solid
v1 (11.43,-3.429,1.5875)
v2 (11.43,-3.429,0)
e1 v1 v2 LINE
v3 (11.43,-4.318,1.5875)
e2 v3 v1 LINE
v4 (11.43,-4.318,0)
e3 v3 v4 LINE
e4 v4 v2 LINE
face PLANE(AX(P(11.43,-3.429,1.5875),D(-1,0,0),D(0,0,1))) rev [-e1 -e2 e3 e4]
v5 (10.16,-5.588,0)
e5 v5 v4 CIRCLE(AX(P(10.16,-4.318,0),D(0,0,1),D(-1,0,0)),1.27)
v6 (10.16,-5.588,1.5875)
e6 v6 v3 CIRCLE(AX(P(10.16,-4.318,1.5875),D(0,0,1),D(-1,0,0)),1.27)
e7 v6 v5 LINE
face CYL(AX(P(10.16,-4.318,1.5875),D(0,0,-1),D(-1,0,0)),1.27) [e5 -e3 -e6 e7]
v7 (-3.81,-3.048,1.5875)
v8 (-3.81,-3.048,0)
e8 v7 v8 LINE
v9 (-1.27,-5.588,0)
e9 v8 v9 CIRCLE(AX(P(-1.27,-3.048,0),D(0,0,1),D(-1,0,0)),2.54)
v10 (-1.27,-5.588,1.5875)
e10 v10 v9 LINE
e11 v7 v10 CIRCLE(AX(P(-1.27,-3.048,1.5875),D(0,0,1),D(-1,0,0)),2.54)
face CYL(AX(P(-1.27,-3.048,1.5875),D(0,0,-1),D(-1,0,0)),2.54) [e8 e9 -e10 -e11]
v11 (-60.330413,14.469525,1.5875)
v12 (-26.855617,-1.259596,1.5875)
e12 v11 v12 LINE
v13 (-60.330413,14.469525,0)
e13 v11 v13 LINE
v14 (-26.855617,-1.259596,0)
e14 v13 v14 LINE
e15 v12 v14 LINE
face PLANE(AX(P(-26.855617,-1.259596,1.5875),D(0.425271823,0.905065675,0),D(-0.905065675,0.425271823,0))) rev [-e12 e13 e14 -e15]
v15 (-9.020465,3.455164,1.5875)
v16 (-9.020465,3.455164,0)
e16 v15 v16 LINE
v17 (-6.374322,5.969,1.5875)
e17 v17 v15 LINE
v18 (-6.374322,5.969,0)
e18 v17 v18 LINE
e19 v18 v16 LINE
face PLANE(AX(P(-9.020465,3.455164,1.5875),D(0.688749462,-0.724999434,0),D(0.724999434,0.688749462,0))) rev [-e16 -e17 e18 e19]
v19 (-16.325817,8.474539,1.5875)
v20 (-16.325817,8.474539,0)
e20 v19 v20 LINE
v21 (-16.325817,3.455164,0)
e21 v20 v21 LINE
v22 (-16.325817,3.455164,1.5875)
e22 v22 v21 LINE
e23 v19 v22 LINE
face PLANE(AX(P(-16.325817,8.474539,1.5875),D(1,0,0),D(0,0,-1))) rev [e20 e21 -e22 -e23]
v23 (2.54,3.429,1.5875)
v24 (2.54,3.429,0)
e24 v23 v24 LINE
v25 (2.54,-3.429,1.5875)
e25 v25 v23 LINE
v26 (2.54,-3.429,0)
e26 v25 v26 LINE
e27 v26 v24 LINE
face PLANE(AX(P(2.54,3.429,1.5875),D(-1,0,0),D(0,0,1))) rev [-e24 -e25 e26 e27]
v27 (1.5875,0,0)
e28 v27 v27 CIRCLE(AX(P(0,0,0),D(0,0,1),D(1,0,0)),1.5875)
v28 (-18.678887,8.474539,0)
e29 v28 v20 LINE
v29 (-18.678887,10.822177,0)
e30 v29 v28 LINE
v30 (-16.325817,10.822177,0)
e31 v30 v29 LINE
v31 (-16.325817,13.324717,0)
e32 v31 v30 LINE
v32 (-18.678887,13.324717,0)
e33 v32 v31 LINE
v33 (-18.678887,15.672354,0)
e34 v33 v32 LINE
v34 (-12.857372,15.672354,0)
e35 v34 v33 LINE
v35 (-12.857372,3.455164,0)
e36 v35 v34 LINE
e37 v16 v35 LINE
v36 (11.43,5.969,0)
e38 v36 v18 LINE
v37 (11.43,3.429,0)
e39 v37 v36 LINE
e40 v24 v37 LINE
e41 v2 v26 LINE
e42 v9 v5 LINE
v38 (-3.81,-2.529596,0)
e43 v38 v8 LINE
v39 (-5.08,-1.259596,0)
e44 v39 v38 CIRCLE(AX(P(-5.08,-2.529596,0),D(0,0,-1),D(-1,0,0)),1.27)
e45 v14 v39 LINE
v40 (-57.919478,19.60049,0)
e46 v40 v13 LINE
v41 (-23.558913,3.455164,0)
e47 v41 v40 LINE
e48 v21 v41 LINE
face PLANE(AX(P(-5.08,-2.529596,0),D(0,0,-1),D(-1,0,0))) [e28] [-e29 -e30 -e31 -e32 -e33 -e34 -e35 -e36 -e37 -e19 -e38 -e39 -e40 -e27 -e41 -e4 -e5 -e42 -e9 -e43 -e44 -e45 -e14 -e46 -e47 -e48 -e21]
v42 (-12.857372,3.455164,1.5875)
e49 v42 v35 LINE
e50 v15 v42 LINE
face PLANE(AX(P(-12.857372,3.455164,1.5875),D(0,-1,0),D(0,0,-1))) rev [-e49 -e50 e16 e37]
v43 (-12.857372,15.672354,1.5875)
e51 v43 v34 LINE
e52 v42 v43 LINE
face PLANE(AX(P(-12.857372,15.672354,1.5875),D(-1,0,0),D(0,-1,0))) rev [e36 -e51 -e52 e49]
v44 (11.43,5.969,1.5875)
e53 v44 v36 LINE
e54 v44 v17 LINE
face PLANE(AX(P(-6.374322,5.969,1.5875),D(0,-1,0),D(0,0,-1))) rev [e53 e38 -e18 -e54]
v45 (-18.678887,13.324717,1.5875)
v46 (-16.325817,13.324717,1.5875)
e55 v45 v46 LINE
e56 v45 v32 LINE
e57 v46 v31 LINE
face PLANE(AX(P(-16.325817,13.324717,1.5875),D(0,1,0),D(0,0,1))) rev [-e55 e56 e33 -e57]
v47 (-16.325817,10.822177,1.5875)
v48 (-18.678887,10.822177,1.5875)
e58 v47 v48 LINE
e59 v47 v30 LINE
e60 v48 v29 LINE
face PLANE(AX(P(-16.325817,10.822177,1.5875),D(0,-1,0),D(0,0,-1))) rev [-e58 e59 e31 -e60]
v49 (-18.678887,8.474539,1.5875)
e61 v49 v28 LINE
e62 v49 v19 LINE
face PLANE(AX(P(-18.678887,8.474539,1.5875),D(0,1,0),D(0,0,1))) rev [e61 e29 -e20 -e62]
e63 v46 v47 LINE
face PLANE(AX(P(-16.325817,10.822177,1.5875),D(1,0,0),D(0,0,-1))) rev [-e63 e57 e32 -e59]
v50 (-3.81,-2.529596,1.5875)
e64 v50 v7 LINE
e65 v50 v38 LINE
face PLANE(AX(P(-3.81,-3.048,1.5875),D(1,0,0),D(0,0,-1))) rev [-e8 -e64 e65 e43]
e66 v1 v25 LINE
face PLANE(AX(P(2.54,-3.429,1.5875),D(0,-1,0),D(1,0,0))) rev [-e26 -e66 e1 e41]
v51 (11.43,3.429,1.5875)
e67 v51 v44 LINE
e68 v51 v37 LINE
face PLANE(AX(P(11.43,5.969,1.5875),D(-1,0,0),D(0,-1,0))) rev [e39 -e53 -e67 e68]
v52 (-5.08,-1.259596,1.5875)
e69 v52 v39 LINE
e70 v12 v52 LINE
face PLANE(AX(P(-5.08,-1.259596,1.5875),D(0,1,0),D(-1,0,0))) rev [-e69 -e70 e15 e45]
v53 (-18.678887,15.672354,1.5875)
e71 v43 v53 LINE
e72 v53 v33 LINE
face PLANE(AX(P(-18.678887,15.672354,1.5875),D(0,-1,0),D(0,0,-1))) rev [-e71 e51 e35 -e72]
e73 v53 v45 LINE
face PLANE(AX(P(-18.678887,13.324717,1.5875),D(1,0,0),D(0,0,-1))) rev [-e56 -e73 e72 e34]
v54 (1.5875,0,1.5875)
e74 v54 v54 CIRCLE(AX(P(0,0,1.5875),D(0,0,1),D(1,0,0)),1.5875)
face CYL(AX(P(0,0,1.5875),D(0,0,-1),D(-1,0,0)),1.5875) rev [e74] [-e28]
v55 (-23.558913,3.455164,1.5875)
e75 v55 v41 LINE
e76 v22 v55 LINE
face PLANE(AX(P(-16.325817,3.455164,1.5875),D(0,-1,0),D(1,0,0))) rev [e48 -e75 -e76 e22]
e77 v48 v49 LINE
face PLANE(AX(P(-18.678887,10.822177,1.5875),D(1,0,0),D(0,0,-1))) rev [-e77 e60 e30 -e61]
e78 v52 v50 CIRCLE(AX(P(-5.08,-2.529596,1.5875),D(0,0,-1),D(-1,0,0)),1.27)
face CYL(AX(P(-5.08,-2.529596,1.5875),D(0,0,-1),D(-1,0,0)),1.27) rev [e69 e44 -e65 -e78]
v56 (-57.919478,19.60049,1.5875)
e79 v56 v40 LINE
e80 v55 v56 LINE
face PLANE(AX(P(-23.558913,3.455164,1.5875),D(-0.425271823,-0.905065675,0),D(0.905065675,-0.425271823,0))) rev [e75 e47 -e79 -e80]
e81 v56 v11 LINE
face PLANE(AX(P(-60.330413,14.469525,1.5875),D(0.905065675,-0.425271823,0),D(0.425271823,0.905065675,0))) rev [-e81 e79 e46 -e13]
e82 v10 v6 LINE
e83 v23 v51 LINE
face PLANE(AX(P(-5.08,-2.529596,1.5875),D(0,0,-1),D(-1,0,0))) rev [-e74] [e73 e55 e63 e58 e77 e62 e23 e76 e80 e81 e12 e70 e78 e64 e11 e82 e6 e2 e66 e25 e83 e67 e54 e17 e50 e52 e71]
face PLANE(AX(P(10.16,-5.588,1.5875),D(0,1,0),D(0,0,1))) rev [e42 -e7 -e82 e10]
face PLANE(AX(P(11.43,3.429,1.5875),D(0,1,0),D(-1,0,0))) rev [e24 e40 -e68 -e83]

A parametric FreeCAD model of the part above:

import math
import FreeCAD as App
import Part
import Sketcher
Q = App.Units.Quantity

doc = App.newDocument("Part")
params = doc.addObject("Spreadsheet::Sheet", "Params")
for row, (alias, value) in enumerate([
    ("sketch1_radius", "0.1 in"),
    ("sketch1_radius2", "0.05 in"),
    ("sketch1_diameter", "0.125 in"),
    ("sketch1_height", "0.1 in"),
    ("sketch1_width", "0.45 in"),
    ("pad1_length", "0.0625 in"),
], start=1):
    params.set(f"A{row}", alias)
    params.set(f"B{row}", "=" + value)
    params.setAlias(f"B{row}", alias)

body = doc.addObject("PartDesign::Body", "Body")

# Sketch on XY plane
sketch1 = body.newObject("Sketcher::SketchObject", "Sketch")
sketch1.AttachmentSupport = (doc.getObject("XY_Plane"), [""])
sketch1.MapMode = "FlatFace"
sketch1.addGeometry([
    Part.LineSegment(App.Vector(-16.3, 3.5, 0), App.Vector(-23.6, 3.5, 0)),  # 0
    Part.LineSegment(App.Vector(-23.6, 3.5, 0), App.Vector(-57.9, 19.6, 0)),  # 1
    Part.LineSegment(App.Vector(-57.9, 19.6, 0), App.Vector(-60.3, 14.5, 0)),  # 2
    Part.LineSegment(App.Vector(-60.3, 14.5, 0), App.Vector(-26.9, -1.3, 0)),  # 3
    Part.LineSegment(App.Vector(-26.9, -1.3, 0), App.Vector(-5.1, -1.3, 0)),  # 4
    Part.ArcOfCircle(Part.Circle(App.Vector(-5.1, -2.5, 0), App.Vector(0, 0, 1), 1.3), math.radians(0), math.radians(90)),  # 5
    Part.LineSegment(App.Vector(-3.8, -2.5, 0), App.Vector(-3.8, -3, 0)),  # 6
    Part.ArcOfCircle(Part.Circle(App.Vector(-1.3, -3, 0), App.Vector(0, 0, 1), 2.5), math.radians(-180), math.radians(-90)),  # 7
    Part.LineSegment(App.Vector(-1.3, -5.6, 0), App.Vector(10.2, -5.6, 0)),  # 8
    Part.ArcOfCircle(Part.Circle(App.Vector(10.2, -4.3, 0), App.Vector(0, 0, 1), 1.3), math.radians(-90), math.radians(0)),  # 9
    Part.LineSegment(App.Vector(11.4, -4.3, 0), App.Vector(11.4, -3.4, 0)),  # 10
    Part.LineSegment(App.Vector(11.4, -3.4, 0), App.Vector(2.5, -3.4, 0)),  # 11
    Part.LineSegment(App.Vector(2.5, -3.4, 0), App.Vector(2.5, 3.4, 0)),  # 12
    Part.LineSegment(App.Vector(2.5, 3.4, 0), App.Vector(11.4, 3.4, 0)),  # 13
    Part.LineSegment(App.Vector(11.4, 3.4, 0), App.Vector(11.4, 6, 0)),  # 14
    Part.LineSegment(App.Vector(11.4, 6, 0), App.Vector(-6.4, 6, 0)),  # 15
    Part.LineSegment(App.Vector(-6.4, 6, 0), App.Vector(-9, 3.5, 0)),  # 16
    Part.LineSegment(App.Vector(-9, 3.5, 0), App.Vector(-12.9, 3.5, 0)),  # 17
    Part.LineSegment(App.Vector(-12.9, 3.5, 0), App.Vector(-12.9, 15.7, 0)),  # 18
    Part.LineSegment(App.Vector(-12.9, 15.7, 0), App.Vector(-18.7, 15.7, 0)),  # 19
    Part.LineSegment(App.Vector(-18.7, 15.7, 0), App.Vector(-18.7, 13.3, 0)),  # 20
    Part.LineSegment(App.Vector(-18.7, 13.3, 0), App.Vector(-16.3, 13.3, 0)),  # 21
    Part.LineSegment(App.Vector(-16.3, 13.3, 0), App.Vector(-16.3, 10.8, 0)),  # 22
    Part.LineSegment(App.Vector(-16.3, 10.8, 0), App.Vector(-18.7, 10.8, 0)),  # 23
    Part.LineSegment(App.Vector(-18.7, 10.8, 0), App.Vector(-18.7, 8.5, 0)),  # 24
    Part.LineSegment(App.Vector(-18.7, 8.5, 0), App.Vector(-16.3, 8.5, 0)),  # 25
    Part.LineSegment(App.Vector(-16.3, 8.5, 0), App.Vector(-16.3, 3.5, 0)),  # 26
    Part.Circle(App.Vector(0, 0, 0), App.Vector(0, 0, 1), 1.6),  # 27
], False)
sketch1.addConstraint([
    Sketcher.Constraint("Coincident", 0, 2, 1, 1),
    Sketcher.Constraint("Coincident", 1, 2, 2, 1),
    Sketcher.Constraint("Coincident", 2, 2, 3, 1),
    Sketcher.Constraint("Coincident", 3, 2, 4, 1),
    Sketcher.Constraint("Tangent", 4, 2, 5, 2),
    Sketcher.Constraint("Tangent", 5, 1, 6, 1),
    Sketcher.Constraint("Tangent", 6, 2, 7, 1),
    Sketcher.Constraint("Tangent", 7, 2, 8, 1),
    Sketcher.Constraint("Tangent", 8, 2, 9, 1),
    Sketcher.Constraint("Tangent", 9, 2, 10, 1),
    Sketcher.Constraint("Coincident", 10, 2, 11, 1),
    Sketcher.Constraint("Coincident", 11, 2, 12, 1),
    Sketcher.Constraint("Coincident", 12, 2, 13, 1),
    Sketcher.Constraint("Coincident", 13, 2, 14, 1),
    Sketcher.Constraint("Coincident", 14, 2, 15, 1),
    Sketcher.Constraint("Coincident", 15, 2, 16, 1),
    Sketcher.Constraint("Coincident", 16, 2, 17, 1),
    Sketcher.Constraint("Coincident", 17, 2, 18, 1),
    Sketcher.Constraint("Coincident", 18, 2, 19, 1),
    Sketcher.Constraint("Coincident", 19, 2, 20, 1),
    Sketcher.Constraint("Coincident", 20, 2, 21, 1),
    Sketcher.Constraint("Coincident", 21, 2, 22, 1),
    Sketcher.Constraint("Coincident", 22, 2, 23, 1),
    Sketcher.Constraint("Coincident", 23, 2, 24, 1),
    Sketcher.Constraint("Coincident", 24, 2, 25, 1),
    Sketcher.Constraint("Coincident", 25, 2, 26, 1),
    Sketcher.Constraint("Coincident", 26, 2, 0, 1),
    Sketcher.Constraint("Horizontal", 0),
    Sketcher.Constraint("Horizontal", 4),
    Sketcher.Constraint("Vertical", 6),
    Sketcher.Constraint("Horizontal", 8),
    Sketcher.Constraint("Vertical", 10),
    Sketcher.Constraint("Horizontal", 11),
    Sketcher.Constraint("Vertical", 12),
    Sketcher.Constraint("Horizontal", 13),
    Sketcher.Constraint("Vertical", 14),
    Sketcher.Constraint("Horizontal", 15),
    Sketcher.Constraint("Horizontal", 17),
    Sketcher.Constraint("Vertical", 18),
    Sketcher.Constraint("Horizontal", 19),
    Sketcher.Constraint("Vertical", 20),
    Sketcher.Constraint("Horizontal", 21),
    Sketcher.Constraint("Vertical", 22),
    Sketcher.Constraint("Horizontal", 23),
    Sketcher.Constraint("Vertical", 24),
    Sketcher.Constraint("Horizontal", 25),
    Sketcher.Constraint("Vertical", 26),
    Sketcher.Constraint("Coincident", 27, 3, -1, 1),
    Sketcher.Constraint("Equal", 5, 9),
    Sketcher.Constraint("Symmetric", 10, 2, 13, 2, -1),
    Sketcher.Constraint("Perpendicular", 1, 2),
    Sketcher.Constraint("Perpendicular", 2, 3),
    Sketcher.Constraint("Horizontal", 0, 2, 16, 2),
    Sketcher.Constraint("Vertical", 20, 2, 23, 2),
    Sketcher.Constraint("Vertical", 22, 2, 25, 2),
    Sketcher.Constraint("Equal", 20, 24),
    Sketcher.Constraint("Radius", 7, Q("0.1 in")),
    Sketcher.Constraint("Radius", 5, Q("0.05 in")),
    Sketcher.Constraint("Diameter", 27, Q("0.125 in")),
    Sketcher.Constraint("DistanceY", 14, 1, 14, 2, Q("0.1 in")),
    Sketcher.Constraint("DistanceX", 8, 1, 8, 2, Q("0.45 in")),
    Sketcher.Constraint("DistanceX", 11, 2, 11, 1, Q("0.35 in")),
    Sketcher.Constraint("DistanceY", 12, 1, 12, 2, Q("0.27 in")),
    Sketcher.Constraint("DistanceX", 5, 3, -1, 1, Q("0.2 in")),
    Sketcher.Constraint("DistanceY", 10, 1, 10, 2, Q("0.035 in")),
    Sketcher.Constraint("DistanceX", 15, 2, 15, 1, Q("17.804322 mm")),
    Sketcher.Constraint("DistanceX", 21, 1, 21, 2, Q("2.35307 mm")),
    Sketcher.Constraint("DistanceY", 18, 1, 18, 2, Q("12.21719 mm")),
    Sketcher.Constraint("DistanceY", 22, 2, 22, 1, Q("2.50254 mm")),
    Sketcher.Constraint("DistanceX", 2, 2, 0, 2, Q("36.7715 mm")),
    Sketcher.Constraint("Distance", 1, Q("37.96472 mm")),
    Sketcher.Constraint("Distance", 3, Q("36.986041 mm")),
    Sketcher.Constraint("DistanceX", 0, 2, 0, 1, Q("7.233096 mm")),
    Sketcher.Constraint("DistanceX", 4, 1, 4, 2, Q("21.775617 mm")),
    Sketcher.Constraint("DistanceX", 17, 2, 17, 1, Q("3.836908 mm")),
    Sketcher.Constraint("DistanceX", 19, 2, 19, 1, Q("5.821515 mm")),
    Sketcher.Constraint("DistanceY", 6, 2, 6, 1, Q("0.518404 mm")),
    Sketcher.Constraint("DistanceY", 20, 2, 20, 1, Q("2.347637 mm")),
    Sketcher.Constraint("DistanceY", -1, 1, 1, 2, Q("19.60049 mm")),
])
sketch1.setExpression("Constraints[56]", "Params.sketch1_radius")
sketch1.setExpression("Constraints[57]", "Params.sketch1_radius2")
sketch1.setExpression("Constraints[58]", "Params.sketch1_diameter")
sketch1.setExpression("Constraints[59]", "Params.sketch1_height")
sketch1.setExpression("Constraints[60]", "Params.sketch1_width")
pad1 = body.newObject("PartDesign::Pad", "Pad")
pad1.Profile = sketch1
pad1.setExpression("Length", "Params.pad1_length")

doc.recompute()
